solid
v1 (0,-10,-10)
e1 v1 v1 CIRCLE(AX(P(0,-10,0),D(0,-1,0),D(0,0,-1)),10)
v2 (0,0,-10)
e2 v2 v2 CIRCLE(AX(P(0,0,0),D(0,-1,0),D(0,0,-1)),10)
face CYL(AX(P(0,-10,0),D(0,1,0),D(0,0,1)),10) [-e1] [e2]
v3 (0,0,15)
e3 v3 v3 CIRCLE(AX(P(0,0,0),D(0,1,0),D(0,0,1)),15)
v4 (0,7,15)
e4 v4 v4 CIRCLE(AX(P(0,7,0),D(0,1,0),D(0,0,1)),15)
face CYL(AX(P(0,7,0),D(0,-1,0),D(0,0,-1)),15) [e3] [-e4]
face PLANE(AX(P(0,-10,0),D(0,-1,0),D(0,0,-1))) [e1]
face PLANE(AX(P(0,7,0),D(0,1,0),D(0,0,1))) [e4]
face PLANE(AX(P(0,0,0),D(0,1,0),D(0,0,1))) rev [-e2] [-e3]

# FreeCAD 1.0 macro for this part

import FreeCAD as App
import Part
import Sketcher
Q = App.Units.Quantity

doc = App.newDocument("Part")
params = doc.addObject("Spreadsheet::Sheet", "Params")
for row, (alias, value) in enumerate([
    ("sketch1_diameter", "30 mm"),
    ("pad1_length", "7 mm"),
    ("sketch2_diameter", "20 mm"),
    ("pad2_length", "10 mm"),
], start=1):
    params.set(f"A{row}", alias)
    params.set(f"B{row}", "=" + value)
    params.setAlias(f"B{row}", alias)

body = doc.addObject("PartDesign::Body", "Body")

# Sketch on XZ plane
sketch1 = doc.addObject("Sketcher::SketchObject", "Sketch")
body.addObject(sketch1)
sketch1.AttachmentSupport = (doc.XZ_Plane, [""])
sketch1.MapMode = "FlatFace"
sketch1.addGeometry(Part.Circle(App.Vector(0, 0, 0), App.Vector(0, 0, 1), 15), False)
sketch1.addConstraint([
    Sketcher.Constraint("Coincident", 0, 3, -1, 1),
    Sketcher.Constraint("Diameter", 0, Q("30 mm")),
])
sketch1.setExpression("Constraints[1]", "Params.sketch1_diameter")
pad1 = doc.addObject("PartDesign::Pad", "Pad")
body.addObject(pad1)
pad1.Profile = sketch1
pad1.setExpression("Length", "Params.pad1_length")
pad1.Reversed = True

# Sketch on XZ plane
sketch2 = doc.addObject("Sketcher::SketchObject", "Sketch001")
body.addObject(sketch2)
sketch2.AttachmentSupport = (doc.XZ_Plane, [""])
sketch2.MapMode = "FlatFace"
sketch2.addGeometry(Part.Circle(App.Vector(0, 0, 0), App.Vector(0, 0, 1), 10), False)
sketch2.addConstraint([
    Sketcher.Constraint("Coincident", 0, 3, -1, 1),
    Sketcher.Constraint("Diameter", 0, Q("20 mm")),
])
sketch2.setExpression("Constraints[1]", "Params.sketch2_diameter")
pad2 = doc.addObject("PartDesign::Pad", "Pad001")
body.addObject(pad2)
pad2.Profile = sketch2
pad2.setExpression("Length", "Params.pad2_length")

doc.recompute()
